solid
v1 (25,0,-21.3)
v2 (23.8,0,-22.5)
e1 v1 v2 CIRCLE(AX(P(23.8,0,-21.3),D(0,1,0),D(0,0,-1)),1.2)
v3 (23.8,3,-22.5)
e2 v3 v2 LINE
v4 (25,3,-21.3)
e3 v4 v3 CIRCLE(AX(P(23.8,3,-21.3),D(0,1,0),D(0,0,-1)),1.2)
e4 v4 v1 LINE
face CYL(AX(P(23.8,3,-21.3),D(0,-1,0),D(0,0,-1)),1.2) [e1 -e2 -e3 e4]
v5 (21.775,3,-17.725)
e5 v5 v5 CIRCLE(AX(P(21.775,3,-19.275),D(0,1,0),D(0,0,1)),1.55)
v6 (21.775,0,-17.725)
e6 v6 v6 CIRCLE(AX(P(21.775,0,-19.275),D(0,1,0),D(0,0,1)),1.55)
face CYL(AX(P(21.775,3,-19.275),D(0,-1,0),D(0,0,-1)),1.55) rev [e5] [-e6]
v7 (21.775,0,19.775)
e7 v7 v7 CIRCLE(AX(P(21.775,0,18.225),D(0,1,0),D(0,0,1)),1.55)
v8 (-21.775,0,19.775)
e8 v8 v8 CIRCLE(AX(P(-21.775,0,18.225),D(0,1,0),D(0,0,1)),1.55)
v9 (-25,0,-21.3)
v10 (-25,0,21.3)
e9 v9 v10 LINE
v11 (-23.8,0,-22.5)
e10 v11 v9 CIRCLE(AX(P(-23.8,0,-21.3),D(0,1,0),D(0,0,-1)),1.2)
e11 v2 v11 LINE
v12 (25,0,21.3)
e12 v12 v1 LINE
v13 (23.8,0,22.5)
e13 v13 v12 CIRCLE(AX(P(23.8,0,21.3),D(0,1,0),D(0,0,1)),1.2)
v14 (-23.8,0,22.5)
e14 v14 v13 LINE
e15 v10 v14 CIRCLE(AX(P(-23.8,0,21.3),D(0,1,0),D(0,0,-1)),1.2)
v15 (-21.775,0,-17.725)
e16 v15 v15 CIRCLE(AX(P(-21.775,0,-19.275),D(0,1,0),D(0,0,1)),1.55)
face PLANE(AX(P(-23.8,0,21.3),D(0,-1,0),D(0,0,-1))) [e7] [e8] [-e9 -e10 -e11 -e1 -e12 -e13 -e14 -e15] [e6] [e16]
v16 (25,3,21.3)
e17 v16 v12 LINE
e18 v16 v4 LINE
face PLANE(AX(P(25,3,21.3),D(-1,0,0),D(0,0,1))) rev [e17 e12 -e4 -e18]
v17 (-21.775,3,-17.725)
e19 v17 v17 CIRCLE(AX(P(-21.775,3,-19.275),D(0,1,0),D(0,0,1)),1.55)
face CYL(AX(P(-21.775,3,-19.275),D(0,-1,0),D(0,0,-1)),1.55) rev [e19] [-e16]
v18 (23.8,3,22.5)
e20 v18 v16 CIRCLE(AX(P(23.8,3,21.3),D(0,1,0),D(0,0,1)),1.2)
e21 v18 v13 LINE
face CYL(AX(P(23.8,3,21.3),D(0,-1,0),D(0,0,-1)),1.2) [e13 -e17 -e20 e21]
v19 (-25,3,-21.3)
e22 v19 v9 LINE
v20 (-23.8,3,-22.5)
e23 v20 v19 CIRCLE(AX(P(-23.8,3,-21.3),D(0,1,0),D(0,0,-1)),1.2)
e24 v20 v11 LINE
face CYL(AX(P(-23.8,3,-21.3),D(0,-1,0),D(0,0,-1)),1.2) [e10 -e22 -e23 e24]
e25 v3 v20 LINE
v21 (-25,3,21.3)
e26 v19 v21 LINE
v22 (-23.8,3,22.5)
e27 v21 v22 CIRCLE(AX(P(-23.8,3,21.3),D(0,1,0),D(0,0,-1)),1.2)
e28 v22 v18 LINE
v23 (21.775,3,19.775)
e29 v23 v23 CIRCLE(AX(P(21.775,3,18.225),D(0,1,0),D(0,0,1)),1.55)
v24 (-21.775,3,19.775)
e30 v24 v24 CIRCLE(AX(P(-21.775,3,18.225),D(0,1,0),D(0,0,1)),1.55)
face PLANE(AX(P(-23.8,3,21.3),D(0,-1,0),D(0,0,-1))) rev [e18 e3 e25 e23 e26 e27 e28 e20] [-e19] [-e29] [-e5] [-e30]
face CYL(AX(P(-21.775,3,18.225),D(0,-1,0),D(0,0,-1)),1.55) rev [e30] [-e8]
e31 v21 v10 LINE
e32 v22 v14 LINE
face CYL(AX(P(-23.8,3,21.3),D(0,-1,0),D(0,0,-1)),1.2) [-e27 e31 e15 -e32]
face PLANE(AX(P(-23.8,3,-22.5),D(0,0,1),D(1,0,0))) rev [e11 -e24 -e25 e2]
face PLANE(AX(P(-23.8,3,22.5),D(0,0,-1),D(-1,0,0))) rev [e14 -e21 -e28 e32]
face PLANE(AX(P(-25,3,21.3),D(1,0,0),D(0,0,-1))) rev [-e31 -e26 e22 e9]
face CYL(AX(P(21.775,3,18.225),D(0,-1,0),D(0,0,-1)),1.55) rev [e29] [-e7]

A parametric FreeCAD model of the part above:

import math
import FreeCAD as App
import Part
import Sketcher

V = App.Vector
Q = App.Units.Quantity

doc = App.newDocument("Part")
body = doc.addObject("PartDesign::Body", "Body")

# Sketch on XZ plane
sketch1 = body.newObject("Sketcher::SketchObject", "Sketch")
sketch1.AttachmentSupport = (doc.getObject("XZ_Plane"), [""])
sketch1.MapMode = "FlatFace"
sketch1.addGeometry(Part.LineSegment(V(-23.8, 22.5, 0), V(23.8, 22.5, 0)), False)
sketch1.addGeometry(Part.ArcOfCircle(Part.Circle(V(23.8, 21.3, 0), V(0, 0, 1), 1.2), math.radians(0), math.radians(90)), False)
sketch1.addGeometry(Part.LineSegment(V(25, 21.3, 0), V(25, -21.3, 0)), False)
sketch1.addGeometry(Part.ArcOfCircle(Part.Circle(V(23.8, -21.3, 0), V(0, 0, 1), 1.2), math.radians(-90), math.radians(0)), False)
sketch1.addGeometry(Part.LineSegment(V(23.8, -22.5, 0), V(-23.8, -22.5, 0)), False)
sketch1.addGeometry(Part.ArcOfCircle(Part.Circle(V(-23.8, -21.3, 0), V(0, 0, 1), 1.2), math.radians(-180), math.radians(-90)), False)
sketch1.addGeometry(Part.LineSegment(V(-25, -21.3, 0), V(-25, 21.3, 0)), False)
sketch1.addGeometry(Part.ArcOfCircle(Part.Circle(V(-23.8, 21.3, 0), V(0, 0, 1), 1.2), math.radians(90), math.radians(180)), False)
sketch1.addGeometry(Part.Circle(V(-21.8, 18.2, 0), V(0, 0, 1), 1.6), False)
sketch1.addGeometry(Part.Circle(V(21.8, 18.2, 0), V(0, 0, 1), 1.6), False)
sketch1.addGeometry(Part.Circle(V(-21.8, -19.3, 0), V(0, 0, 1), 1.6), False)
sketch1.addGeometry(Part.Circle(V(21.8, -19.3, 0), V(0, 0, 1), 1.6), False)
sketch1.addConstraint(Sketcher.Constraint("Tangent", 0, 2, 1, 2))
sketch1.addConstraint(Sketcher.Constraint("Tangent", 1, 1, 2, 1))
sketch1.addConstraint(Sketcher.Constraint("Tangent", 2, 2, 3, 2))
sketch1.addConstraint(Sketcher.Constraint("Tangent", 3, 1, 4, 1))
sketch1.addConstraint(Sketcher.Constraint("Tangent", 4, 2, 5, 2))
sketch1.addConstraint(Sketcher.Constraint("Tangent", 5, 1, 6, 1))
sketch1.addConstraint(Sketcher.Constraint("Tangent", 6, 2, 7, 2))
sketch1.addConstraint(Sketcher.Constraint("Tangent", 7, 1, 0, 1))
sketch1.addConstraint(Sketcher.Constraint("Horizontal", 0))
sketch1.addConstraint(Sketcher.Constraint("Vertical", 2))
sketch1.addConstraint(Sketcher.Constraint("Horizontal", 4))
sketch1.addConstraint(Sketcher.Constraint("Vertical", 6))
sketch1.addConstraint(Sketcher.Constraint("Equal", 1, 3))
sketch1.addConstraint(Sketcher.Constraint("Equal", 3, 5))
sketch1.addConstraint(Sketcher.Constraint("Equal", 5, 7))
sketch1.addConstraint(Sketcher.Constraint("Equal", 8, 9))
sketch1.addConstraint(Sketcher.Constraint("Equal", 9, 10))
sketch1.addConstraint(Sketcher.Constraint("Equal", 10, 11))
sketch1.addConstraint(Sketcher.Constraint("Symmetric", 1, 3, 5, 3, -1, 1))
sketch1.addConstraint(Sketcher.Constraint("Symmetric", 8, 3, 9, 3, -2))
sketch1.addConstraint(Sketcher.Constraint("Symmetric", 10, 3, 11, 3, -2))
sketch1.addConstraint(Sketcher.Constraint("Vertical", 8, 3, 10, 3))
sketch1.addConstraint(Sketcher.Constraint("Diameter", 8, Q("3.1 mm")))
sketch1.addConstraint(Sketcher.Constraint("Radius", 1, Q("1.2 mm")))
sketch1.addConstraint(Sketcher.Constraint("DistanceX", 0, 1, 0, 2, Q("47.6 mm")))
sketch1.addConstraint(Sketcher.Constraint("DistanceY", 2, 2, 2, 1, Q("42.6 mm")))
sketch1.addConstraint(Sketcher.Constraint("DistanceY", 10, 3, 8, 3, Q("37.5 mm")))
sketch1.addConstraint(Sketcher.Constraint("DistanceX", 8, 3, 9, 3, Q("43.55 mm")))
sketch1.addConstraint(Sketcher.Constraint("DistanceY", -1, 1, 8, 3, Q("18.225 mm")))
pad1 = body.newObject("PartDesign::Pad", "Pad")
pad1.Profile = sketch1
pad1.Length = 3
pad1.Reversed = True

doc.recompute()
